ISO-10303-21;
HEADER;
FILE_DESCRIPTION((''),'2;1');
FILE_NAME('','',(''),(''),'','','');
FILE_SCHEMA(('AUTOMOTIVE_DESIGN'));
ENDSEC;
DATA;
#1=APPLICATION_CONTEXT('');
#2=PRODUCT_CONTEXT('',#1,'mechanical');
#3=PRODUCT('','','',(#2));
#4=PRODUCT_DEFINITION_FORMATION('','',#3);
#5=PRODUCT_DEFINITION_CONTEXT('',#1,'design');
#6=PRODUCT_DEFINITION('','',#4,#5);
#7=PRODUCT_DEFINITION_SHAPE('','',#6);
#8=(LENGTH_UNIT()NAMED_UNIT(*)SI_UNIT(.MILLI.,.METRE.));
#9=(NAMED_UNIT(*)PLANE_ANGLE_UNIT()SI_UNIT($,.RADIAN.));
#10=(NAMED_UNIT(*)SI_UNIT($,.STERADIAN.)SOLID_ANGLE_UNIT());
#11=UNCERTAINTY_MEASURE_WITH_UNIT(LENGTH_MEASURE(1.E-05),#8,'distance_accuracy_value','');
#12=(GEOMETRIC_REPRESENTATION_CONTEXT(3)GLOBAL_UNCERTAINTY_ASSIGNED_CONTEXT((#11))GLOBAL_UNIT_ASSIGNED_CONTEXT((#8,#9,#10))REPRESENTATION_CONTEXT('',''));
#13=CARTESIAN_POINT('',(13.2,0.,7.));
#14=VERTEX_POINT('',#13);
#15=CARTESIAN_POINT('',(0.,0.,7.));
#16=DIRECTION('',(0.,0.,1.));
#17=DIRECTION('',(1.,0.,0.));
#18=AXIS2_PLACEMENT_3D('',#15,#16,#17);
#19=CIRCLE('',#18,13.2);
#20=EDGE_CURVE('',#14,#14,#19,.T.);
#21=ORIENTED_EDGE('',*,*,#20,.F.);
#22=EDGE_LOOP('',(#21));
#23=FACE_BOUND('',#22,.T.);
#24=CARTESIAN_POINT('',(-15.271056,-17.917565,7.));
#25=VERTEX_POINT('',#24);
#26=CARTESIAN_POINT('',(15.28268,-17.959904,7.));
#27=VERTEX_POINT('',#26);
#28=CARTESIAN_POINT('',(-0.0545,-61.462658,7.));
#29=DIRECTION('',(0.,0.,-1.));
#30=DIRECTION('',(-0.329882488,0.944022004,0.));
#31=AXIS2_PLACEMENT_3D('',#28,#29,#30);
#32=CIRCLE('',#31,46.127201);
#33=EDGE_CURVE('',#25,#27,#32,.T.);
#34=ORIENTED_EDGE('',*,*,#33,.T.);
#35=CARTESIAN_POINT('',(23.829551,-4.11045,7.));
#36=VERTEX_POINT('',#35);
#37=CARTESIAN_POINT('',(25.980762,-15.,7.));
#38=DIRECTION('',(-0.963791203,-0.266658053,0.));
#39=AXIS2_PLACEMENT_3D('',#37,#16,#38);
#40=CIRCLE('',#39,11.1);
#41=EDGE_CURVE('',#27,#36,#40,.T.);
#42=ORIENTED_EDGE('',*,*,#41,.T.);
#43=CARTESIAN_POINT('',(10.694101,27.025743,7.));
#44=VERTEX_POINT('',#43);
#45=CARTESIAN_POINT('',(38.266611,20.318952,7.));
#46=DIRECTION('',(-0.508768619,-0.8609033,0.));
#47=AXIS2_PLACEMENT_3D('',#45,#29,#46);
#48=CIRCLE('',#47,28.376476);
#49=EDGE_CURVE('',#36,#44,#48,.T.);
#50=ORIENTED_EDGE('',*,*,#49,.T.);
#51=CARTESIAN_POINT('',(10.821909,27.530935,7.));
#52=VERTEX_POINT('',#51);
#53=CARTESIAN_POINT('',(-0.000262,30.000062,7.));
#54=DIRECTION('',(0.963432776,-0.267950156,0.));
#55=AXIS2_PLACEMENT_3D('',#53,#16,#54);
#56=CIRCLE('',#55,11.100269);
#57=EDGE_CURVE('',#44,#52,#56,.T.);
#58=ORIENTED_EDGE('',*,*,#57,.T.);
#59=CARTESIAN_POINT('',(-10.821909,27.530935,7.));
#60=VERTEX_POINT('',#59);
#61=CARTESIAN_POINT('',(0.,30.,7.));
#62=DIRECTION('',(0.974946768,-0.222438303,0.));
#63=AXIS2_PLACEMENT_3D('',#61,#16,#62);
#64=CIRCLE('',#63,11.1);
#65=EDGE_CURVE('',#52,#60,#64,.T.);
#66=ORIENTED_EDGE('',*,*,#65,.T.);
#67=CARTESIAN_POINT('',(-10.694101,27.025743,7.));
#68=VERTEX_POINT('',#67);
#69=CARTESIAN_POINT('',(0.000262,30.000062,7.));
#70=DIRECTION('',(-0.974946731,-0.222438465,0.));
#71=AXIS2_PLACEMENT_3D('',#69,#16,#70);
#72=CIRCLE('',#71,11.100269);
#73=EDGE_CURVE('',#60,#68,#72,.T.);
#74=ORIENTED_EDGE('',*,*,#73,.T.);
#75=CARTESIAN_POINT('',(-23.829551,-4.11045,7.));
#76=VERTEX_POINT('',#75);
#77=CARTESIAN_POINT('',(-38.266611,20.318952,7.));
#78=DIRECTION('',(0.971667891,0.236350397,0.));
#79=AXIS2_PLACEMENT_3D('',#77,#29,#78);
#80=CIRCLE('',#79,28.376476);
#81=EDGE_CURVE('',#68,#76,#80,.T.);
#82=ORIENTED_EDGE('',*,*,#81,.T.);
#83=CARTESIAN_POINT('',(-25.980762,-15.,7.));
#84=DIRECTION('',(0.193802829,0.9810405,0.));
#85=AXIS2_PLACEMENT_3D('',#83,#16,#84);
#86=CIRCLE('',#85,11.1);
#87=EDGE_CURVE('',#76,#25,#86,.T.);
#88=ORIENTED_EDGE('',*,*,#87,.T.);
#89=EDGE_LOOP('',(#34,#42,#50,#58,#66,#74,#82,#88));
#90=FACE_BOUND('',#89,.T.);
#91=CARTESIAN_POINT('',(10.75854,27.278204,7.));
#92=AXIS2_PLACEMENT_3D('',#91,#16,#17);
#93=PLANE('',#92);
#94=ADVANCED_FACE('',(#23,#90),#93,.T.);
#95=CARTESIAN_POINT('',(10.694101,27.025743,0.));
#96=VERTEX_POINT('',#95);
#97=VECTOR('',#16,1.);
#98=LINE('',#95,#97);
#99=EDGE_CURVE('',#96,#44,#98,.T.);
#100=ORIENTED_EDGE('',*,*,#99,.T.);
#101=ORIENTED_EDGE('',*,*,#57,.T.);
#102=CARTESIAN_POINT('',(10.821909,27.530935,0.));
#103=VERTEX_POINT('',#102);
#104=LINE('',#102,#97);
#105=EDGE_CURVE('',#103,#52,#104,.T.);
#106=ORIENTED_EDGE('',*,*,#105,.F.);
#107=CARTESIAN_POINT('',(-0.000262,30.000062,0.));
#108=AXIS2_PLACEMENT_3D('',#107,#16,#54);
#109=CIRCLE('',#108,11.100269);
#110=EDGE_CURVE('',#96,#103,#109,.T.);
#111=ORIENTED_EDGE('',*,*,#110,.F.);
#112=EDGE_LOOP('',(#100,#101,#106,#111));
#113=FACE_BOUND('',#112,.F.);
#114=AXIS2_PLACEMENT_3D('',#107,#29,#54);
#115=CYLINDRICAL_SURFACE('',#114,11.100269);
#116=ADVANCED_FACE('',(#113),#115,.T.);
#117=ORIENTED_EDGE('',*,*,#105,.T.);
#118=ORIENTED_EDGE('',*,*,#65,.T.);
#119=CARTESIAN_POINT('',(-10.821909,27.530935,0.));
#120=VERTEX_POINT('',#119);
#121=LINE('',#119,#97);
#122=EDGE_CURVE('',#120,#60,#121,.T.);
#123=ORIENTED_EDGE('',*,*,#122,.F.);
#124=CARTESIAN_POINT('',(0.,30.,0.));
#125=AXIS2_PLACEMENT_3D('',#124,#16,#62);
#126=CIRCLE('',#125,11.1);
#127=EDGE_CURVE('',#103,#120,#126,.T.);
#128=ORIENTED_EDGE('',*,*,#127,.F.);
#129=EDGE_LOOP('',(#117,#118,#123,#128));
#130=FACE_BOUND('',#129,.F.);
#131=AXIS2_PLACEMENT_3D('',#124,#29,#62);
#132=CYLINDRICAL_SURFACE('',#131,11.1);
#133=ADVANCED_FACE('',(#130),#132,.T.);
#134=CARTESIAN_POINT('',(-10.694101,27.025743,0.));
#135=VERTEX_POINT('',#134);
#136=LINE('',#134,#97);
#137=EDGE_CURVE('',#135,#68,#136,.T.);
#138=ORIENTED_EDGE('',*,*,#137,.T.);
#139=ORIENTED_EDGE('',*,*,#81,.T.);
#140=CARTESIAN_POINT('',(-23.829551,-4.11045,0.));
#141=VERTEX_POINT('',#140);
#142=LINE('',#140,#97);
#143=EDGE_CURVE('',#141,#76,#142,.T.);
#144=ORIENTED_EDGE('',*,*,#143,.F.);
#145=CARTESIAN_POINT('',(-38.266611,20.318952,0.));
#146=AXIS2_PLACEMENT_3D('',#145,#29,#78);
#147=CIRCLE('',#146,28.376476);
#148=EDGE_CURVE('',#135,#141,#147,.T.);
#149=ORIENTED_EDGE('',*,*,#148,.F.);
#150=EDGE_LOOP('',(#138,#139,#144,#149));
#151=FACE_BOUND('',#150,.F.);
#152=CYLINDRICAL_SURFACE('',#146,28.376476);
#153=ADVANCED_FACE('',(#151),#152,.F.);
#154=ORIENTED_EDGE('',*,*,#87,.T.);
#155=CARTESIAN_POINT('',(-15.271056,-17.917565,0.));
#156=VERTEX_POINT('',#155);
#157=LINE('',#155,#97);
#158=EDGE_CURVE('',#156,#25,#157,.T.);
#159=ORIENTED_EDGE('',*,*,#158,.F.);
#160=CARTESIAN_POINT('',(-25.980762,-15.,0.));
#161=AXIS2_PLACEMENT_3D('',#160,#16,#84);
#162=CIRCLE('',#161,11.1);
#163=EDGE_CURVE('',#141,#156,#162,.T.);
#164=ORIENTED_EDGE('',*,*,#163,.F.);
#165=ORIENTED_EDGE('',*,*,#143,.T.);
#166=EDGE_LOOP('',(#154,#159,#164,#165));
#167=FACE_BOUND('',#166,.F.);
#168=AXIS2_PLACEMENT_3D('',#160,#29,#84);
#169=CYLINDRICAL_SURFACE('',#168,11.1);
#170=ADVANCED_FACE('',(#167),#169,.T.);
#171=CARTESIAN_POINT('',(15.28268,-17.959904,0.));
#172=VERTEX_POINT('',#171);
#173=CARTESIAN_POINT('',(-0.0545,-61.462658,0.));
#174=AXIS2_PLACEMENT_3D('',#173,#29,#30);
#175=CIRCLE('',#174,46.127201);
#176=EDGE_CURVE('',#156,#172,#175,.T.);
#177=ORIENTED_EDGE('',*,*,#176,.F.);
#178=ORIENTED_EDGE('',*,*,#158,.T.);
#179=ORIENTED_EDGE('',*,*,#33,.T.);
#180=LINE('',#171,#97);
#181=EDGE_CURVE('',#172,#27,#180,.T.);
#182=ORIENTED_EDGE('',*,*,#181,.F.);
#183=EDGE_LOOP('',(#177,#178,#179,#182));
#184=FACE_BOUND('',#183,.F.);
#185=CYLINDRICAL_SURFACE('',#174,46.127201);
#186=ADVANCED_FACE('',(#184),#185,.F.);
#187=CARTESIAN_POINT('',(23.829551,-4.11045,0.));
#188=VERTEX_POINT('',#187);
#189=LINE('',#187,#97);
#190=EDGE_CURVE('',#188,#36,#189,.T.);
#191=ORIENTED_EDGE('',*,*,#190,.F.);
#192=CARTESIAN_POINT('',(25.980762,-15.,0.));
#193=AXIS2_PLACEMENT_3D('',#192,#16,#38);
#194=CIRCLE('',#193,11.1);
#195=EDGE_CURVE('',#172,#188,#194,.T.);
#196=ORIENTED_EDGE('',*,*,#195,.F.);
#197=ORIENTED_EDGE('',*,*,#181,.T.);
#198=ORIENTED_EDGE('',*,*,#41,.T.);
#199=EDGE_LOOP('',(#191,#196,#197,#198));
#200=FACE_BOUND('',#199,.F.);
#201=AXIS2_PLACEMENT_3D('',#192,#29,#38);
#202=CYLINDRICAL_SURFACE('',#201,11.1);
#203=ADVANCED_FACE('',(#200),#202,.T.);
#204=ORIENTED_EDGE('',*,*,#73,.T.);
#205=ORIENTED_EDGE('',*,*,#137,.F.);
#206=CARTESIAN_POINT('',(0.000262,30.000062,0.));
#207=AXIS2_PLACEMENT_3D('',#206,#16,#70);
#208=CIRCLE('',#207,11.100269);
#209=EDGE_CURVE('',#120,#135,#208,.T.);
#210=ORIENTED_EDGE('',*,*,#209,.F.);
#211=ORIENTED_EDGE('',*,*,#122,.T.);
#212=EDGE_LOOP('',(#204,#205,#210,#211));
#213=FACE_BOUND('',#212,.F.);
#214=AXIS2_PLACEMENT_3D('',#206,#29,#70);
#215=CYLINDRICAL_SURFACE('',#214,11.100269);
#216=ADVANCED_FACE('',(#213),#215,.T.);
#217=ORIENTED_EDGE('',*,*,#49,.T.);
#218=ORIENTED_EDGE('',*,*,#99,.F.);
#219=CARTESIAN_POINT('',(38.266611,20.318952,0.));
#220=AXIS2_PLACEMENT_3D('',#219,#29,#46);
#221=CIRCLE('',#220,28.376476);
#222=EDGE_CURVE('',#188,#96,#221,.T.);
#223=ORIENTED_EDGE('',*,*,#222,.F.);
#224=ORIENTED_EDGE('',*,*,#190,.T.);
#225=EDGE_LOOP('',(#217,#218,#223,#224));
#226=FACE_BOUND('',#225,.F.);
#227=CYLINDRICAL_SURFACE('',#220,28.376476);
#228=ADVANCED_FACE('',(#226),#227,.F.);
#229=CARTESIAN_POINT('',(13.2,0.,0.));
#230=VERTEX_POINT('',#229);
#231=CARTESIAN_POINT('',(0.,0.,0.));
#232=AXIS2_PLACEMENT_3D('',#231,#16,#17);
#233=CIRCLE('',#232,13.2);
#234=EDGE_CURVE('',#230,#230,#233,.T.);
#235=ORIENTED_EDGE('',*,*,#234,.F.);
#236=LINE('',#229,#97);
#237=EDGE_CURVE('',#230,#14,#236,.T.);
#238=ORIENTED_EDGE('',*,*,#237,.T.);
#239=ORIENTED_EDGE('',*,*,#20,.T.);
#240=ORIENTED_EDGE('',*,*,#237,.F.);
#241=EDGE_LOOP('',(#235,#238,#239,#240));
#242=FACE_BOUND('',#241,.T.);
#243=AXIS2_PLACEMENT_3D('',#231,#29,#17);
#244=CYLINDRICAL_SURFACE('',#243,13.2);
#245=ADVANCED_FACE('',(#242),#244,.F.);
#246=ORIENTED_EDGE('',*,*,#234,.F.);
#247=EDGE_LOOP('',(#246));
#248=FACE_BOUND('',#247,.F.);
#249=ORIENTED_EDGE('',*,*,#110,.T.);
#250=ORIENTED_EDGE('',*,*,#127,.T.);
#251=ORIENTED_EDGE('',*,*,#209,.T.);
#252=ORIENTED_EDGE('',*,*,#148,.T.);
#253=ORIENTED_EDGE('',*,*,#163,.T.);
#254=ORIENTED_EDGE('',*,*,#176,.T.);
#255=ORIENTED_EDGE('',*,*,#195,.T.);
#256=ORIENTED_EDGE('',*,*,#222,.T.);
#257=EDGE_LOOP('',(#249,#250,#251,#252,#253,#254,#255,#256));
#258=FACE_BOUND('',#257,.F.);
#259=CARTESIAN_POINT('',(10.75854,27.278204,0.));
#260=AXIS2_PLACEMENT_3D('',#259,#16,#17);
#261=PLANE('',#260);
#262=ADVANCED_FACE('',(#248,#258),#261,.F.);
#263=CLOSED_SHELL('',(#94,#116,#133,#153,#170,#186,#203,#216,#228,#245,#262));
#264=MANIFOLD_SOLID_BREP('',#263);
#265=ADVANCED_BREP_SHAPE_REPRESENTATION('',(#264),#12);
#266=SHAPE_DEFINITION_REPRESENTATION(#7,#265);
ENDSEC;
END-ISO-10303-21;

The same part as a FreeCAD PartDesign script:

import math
import FreeCAD as App
import Part
import Sketcher

V = App.Vector

doc = App.newDocument("Part")
body = doc.addObject("PartDesign::Body", "Body")

# Sketch on XY plane
sketch1 = doc.addObject("Sketcher::SketchObject", "Sketch")
body.addObject(sketch1)
sketch1.AttachmentSupport = (doc.XY_Plane, [""])
sketch1.MapMode = "FlatFace"
sketch1.addGeometry([
    Part.ArcOfCircle(Part.Circle(V(-0.000262, 30.000062, 0), V(0, 0, 1), 11.100269), math.radians(-15.542325), math.radians(-12.852296)),  # 0
    Part.ArcOfCircle(Part.Circle(V(0, 30, 0), V(0, 0, 1), 11.1), math.radians(-12.852287), math.radians(192.852287)),  # 1
    Part.ArcOfCircle(Part.Circle(V(0.000262, 30.000062, 0), V(0, 0, 1), 11.100269), math.radians(-167.147704), math.radians(-164.457675)),  # 2
    Part.ArcOfCircle(Part.Circle(V(-38.266611, 20.318952, 0), V(0, 0, 1), 28.376476), math.radians(-59.418157), math.radians(13.671237)),  # 3
    Part.ArcOfCircle(Part.Circle(V(-25.980762, -15, 0), V(0, 0, 1), 11.1), math.radians(78.825203), math.radians(344.761133)),  # 4
    Part.ArcOfCircle(Part.Circle(V(-0.0545, -61.462658, 0), V(0, 0, 1), 46.127201), math.radians(70.579565), math.radians(109.261643)),  # 5
    Part.ArcOfCircle(Part.Circle(V(25.980762, -15, 0), V(0, 0, 1), 11.1), math.radians(-164.534502), math.radians(101.174797)),  # 6
    Part.ArcOfCircle(Part.Circle(V(38.266611, 20.318952, 0), V(0, 0, 1), 28.376476), math.radians(166.328763), math.radians(239.418157)),  # 7
    Part.Circle(V(0, 0, 0), V(0, 0, 1), 13.2),  # 8
], False)
sketch1.addConstraint([
    Sketcher.Constraint("Tangent", 0, 2, 1, 1),
    Sketcher.Constraint("Tangent", 1, 2, 2, 1),
    Sketcher.Constraint("Coincident", 2, 2, 3, 2),
    Sketcher.Constraint("Coincident", 3, 1, 4, 1),
    Sketcher.Constraint("Coincident", 4, 2, 5, 2),
    Sketcher.Constraint("Coincident", 5, 1, 6, 1),
    Sketcher.Constraint("Coincident", 6, 2, 7, 2),
    Sketcher.Constraint("Coincident", 7, 1, 0, 1),
    Sketcher.Constraint("Coincident", 8, 3, -1, 1),
    Sketcher.Constraint("Equal", 0, 2),
    Sketcher.Constraint("Equal", 1, 4),
    Sketcher.Constraint("Equal", 4, 6),
    Sketcher.Constraint("Equal", 3, 7),
    Sketcher.Constraint("Symmetric", 4, 3, 6, 3, -2),
    Sketcher.Constraint("Symmetric", 3, 3, 7, 3, -2),
    Sketcher.Constraint("Symmetric", 0, 2, 1, 2, -2),
    Sketcher.Constraint("Diameter", 8, 26.4),
    Sketcher.Constraint("Radius", 1, 11.1),
    Sketcher.Constraint("DistanceY", -1, 1, 1, 3, 30.0),
    Sketcher.Constraint("DistanceY", 4, 3, -1, 1, 15.0),
    Sketcher.Constraint("Radius", 5, 46.127201),
    Sketcher.Constraint("Radius", 0, 11.100269),
    Sketcher.Constraint("Radius", 3, 28.376476),
    Sketcher.Constraint("DistanceX", 5, 3, -1, 1, 0.0545),
    Sketcher.Constraint("DistanceX", 2, 2, -1, 1, 10.694101),
    Sketcher.Constraint("DistanceX", 4, 3, 0, 3, 25.980501),
    Sketcher.Constraint("DistanceY", 3, 1, 3, 3, 24.429402),
    Sketcher.Constraint("DistanceX", -1, 1, 0, 2, 10.821909),
    Sketcher.Constraint("DistanceX", -1, 1, 5, 1, 15.28268),
])
pad1 = doc.addObject("PartDesign::Pad", "Pad")
body.addObject(pad1)
pad1.Profile = sketch1
pad1.Length = 7

doc.recompute()
